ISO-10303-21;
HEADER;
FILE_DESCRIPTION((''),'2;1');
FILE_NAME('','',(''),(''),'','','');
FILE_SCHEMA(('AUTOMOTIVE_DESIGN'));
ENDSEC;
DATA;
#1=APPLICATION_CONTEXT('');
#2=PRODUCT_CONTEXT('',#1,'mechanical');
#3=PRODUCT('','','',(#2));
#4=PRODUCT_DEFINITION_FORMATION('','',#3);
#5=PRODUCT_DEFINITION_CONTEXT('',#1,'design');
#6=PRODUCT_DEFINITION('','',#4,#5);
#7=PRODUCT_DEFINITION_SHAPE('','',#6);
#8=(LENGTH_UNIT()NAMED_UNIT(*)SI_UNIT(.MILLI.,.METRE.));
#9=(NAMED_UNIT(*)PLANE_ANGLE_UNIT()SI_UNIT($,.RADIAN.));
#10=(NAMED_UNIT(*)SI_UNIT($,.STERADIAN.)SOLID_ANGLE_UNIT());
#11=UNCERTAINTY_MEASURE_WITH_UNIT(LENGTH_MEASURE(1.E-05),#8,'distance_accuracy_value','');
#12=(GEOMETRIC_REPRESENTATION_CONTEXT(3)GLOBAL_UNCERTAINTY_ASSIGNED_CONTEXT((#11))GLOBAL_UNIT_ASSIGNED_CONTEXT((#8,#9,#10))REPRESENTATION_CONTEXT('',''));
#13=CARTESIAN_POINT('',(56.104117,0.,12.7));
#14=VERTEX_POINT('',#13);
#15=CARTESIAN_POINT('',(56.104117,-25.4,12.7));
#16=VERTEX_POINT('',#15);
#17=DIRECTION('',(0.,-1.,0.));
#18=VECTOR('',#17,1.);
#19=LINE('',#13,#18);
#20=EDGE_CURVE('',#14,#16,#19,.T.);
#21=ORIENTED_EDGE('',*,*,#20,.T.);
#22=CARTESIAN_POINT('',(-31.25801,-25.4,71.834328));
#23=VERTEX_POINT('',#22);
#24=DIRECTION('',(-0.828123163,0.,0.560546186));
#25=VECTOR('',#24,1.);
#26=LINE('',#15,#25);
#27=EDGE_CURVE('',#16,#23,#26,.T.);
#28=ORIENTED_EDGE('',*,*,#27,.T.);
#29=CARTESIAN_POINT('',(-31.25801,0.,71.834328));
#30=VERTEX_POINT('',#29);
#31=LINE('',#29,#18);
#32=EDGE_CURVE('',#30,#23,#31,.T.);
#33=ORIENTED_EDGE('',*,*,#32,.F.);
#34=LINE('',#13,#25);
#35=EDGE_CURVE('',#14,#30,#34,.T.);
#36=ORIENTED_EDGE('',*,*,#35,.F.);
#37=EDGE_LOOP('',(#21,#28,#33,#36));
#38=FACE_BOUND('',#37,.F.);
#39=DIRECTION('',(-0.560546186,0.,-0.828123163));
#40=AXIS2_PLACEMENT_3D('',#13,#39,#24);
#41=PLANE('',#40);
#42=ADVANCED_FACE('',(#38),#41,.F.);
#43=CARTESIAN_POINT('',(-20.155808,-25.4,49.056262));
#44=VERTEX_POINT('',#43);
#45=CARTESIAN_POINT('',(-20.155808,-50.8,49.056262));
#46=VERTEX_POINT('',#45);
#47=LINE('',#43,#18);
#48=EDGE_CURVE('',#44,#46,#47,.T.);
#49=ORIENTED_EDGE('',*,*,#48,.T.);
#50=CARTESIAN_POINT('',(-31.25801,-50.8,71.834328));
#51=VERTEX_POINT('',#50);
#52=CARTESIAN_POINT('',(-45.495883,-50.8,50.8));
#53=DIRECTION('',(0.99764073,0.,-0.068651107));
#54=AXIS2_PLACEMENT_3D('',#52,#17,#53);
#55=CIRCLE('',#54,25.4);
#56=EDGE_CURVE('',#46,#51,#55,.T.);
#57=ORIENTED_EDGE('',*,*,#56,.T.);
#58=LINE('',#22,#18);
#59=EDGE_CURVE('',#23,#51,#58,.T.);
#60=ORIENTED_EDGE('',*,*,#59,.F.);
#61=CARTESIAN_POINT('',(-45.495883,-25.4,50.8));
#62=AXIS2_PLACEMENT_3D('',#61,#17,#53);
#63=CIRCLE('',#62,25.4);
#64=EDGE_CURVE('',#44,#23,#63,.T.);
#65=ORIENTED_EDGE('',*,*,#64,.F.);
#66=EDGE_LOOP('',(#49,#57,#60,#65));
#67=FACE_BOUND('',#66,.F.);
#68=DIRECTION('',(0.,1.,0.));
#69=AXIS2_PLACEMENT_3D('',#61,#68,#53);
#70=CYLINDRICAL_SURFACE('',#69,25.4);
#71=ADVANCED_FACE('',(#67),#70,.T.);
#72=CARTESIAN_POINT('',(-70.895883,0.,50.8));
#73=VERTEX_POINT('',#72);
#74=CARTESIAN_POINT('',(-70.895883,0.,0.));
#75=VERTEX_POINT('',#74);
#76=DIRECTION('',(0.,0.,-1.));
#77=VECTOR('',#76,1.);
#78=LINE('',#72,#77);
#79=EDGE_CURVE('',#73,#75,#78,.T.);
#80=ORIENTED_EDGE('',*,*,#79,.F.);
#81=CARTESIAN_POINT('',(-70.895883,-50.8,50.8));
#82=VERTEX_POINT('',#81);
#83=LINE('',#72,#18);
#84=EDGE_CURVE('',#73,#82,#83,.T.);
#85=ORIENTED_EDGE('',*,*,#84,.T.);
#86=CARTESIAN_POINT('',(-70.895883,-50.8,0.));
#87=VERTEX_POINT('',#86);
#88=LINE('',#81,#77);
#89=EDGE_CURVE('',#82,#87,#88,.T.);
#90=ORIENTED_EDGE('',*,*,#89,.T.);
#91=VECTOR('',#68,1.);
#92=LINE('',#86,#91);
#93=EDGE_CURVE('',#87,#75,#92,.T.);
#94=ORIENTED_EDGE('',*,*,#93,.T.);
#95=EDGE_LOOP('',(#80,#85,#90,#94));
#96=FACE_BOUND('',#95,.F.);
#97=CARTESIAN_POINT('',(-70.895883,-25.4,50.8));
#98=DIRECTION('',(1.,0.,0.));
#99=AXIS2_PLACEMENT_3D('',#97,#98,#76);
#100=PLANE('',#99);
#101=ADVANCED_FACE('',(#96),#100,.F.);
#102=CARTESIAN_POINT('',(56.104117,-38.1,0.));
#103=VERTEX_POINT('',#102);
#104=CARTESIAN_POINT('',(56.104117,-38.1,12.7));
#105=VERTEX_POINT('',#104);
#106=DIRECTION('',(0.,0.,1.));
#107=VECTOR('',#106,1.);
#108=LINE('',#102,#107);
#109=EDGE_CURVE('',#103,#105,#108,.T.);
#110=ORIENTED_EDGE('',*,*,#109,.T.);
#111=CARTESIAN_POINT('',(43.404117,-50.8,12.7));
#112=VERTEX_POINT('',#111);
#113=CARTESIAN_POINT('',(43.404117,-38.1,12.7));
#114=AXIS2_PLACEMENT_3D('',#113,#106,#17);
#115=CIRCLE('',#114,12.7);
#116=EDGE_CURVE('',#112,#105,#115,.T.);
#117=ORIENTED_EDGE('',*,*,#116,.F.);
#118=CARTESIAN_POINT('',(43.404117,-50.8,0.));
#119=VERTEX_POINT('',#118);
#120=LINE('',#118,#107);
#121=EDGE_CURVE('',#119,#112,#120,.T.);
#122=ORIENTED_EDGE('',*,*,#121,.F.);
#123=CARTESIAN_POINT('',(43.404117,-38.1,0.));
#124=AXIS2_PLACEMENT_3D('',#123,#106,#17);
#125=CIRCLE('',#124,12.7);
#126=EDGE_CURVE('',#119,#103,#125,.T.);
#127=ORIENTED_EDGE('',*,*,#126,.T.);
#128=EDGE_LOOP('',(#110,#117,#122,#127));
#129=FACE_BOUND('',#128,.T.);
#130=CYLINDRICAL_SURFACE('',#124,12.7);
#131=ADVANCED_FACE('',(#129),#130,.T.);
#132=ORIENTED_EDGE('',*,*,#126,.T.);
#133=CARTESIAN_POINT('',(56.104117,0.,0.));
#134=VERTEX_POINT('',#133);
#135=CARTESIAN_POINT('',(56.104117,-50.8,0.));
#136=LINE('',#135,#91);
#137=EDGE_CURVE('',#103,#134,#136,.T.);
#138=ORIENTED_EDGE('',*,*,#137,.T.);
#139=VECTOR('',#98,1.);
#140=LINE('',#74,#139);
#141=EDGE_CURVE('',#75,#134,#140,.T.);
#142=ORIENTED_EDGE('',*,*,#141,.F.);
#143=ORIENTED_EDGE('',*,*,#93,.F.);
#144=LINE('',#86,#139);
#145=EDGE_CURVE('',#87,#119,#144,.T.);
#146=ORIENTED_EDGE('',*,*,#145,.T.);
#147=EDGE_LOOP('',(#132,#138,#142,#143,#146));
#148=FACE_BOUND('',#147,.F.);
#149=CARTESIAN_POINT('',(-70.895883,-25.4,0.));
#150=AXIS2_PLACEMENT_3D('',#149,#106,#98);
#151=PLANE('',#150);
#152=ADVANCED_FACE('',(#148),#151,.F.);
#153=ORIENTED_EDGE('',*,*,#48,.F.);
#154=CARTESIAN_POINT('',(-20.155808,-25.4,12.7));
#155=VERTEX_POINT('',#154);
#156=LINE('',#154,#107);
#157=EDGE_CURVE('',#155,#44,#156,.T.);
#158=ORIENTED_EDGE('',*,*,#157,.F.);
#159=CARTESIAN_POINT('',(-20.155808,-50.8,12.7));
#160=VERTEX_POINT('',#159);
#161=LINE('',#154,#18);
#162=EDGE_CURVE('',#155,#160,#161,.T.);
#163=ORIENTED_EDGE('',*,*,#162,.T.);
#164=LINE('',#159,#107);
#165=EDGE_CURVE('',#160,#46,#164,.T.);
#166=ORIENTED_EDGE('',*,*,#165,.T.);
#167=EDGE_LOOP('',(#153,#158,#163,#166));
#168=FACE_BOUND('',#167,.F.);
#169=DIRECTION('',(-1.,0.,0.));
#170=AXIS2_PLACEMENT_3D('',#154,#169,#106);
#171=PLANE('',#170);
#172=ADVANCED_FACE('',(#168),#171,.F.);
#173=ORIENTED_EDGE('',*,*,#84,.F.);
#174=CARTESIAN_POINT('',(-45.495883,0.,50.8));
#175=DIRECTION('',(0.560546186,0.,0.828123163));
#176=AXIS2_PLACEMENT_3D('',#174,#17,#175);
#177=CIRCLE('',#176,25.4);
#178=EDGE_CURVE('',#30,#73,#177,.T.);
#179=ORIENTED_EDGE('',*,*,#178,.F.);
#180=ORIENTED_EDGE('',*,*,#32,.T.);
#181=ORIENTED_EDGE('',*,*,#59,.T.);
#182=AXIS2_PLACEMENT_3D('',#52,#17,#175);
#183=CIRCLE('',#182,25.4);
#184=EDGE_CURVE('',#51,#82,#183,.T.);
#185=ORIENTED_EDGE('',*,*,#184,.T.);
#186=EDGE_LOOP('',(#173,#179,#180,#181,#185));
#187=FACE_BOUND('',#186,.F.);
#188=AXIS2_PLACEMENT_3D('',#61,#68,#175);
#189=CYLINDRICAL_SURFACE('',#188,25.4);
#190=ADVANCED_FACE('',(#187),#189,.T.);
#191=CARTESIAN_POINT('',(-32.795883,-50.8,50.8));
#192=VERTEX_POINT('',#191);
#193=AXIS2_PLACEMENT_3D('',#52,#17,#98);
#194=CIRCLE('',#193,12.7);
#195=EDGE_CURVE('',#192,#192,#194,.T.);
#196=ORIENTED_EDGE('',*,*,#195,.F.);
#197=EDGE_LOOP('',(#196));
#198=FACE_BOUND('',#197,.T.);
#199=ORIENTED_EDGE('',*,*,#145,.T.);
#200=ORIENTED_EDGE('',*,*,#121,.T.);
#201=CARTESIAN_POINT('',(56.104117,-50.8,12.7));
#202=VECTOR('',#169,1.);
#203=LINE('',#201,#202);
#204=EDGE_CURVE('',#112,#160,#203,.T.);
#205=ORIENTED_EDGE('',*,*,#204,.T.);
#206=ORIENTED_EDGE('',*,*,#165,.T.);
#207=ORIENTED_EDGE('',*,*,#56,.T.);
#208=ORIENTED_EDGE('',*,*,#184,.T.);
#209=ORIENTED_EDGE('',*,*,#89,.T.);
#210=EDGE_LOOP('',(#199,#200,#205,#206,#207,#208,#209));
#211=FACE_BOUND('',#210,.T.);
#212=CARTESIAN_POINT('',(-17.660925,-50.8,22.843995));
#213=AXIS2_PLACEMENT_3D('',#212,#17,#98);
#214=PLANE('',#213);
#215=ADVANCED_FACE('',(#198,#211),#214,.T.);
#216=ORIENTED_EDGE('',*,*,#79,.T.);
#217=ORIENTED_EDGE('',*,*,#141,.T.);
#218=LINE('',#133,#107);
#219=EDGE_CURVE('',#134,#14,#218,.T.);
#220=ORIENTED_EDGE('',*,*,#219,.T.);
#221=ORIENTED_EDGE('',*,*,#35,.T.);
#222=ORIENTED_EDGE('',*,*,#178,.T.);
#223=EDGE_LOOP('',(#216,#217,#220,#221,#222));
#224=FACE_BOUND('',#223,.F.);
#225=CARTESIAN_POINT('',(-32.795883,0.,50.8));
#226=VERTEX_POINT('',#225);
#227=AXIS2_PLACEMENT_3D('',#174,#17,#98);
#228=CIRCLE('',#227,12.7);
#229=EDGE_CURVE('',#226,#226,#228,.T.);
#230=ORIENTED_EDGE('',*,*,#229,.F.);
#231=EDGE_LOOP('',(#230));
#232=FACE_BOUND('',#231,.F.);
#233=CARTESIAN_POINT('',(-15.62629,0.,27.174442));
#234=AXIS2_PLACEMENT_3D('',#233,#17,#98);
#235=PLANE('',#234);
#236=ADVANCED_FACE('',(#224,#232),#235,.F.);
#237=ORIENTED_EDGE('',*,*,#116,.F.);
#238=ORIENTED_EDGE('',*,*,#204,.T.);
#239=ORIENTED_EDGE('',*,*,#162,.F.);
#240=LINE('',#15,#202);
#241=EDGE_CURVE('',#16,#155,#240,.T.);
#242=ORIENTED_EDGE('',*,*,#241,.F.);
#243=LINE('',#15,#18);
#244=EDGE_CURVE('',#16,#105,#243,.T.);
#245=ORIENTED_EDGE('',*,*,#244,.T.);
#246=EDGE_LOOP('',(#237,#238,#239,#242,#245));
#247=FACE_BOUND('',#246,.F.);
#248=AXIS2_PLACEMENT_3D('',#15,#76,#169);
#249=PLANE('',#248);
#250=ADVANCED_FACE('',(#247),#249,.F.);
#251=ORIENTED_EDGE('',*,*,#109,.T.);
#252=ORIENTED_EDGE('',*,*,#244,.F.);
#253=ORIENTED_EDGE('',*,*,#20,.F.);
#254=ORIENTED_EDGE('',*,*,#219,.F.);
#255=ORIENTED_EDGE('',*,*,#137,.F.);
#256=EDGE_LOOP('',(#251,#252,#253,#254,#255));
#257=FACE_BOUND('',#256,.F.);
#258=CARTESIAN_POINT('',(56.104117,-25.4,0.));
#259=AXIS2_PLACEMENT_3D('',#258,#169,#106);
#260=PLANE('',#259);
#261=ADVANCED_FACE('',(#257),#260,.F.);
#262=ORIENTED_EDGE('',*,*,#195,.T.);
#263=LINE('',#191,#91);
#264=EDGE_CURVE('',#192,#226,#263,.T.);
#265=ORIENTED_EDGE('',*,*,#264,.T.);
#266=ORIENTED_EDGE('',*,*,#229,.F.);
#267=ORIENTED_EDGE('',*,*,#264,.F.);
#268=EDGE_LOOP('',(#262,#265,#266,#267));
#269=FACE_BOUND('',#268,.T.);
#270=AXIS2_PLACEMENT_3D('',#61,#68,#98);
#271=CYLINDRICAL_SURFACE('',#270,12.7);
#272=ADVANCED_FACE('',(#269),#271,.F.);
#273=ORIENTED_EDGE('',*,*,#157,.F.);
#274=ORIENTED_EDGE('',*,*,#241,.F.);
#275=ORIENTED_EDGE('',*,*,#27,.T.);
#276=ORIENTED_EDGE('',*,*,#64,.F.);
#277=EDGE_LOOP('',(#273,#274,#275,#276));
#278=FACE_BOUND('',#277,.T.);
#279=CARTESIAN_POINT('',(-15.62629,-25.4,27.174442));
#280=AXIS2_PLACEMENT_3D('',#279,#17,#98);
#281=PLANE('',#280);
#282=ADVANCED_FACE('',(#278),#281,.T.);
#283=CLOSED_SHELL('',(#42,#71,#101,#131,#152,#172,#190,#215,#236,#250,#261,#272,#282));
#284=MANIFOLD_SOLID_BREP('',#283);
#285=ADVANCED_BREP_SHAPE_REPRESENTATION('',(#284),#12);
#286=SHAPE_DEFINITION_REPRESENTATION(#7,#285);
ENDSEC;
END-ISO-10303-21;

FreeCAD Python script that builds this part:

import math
import FreeCAD as App
import Part
import Sketcher
from FreeCAD import Vector
Q = App.Units.Quantity


def edges_at(feature, points):
    """Names of the edges that pass closest to the given points."""
    edges = feature.Shape.Edges
    near = lambda p: min(range(len(edges)), key=lambda i: edges[i].distToShape(Part.Vertex(*p))[0])
    return sorted({f"Edge{near(p) + 1}" for p in points})

doc = App.newDocument("Part")
body = doc.addObject("PartDesign::Body", "Body")

# Sketch on XZ plane
sketch1 = body.newObject("Sketcher::SketchObject", "Sketch")
sketch1.AttachmentSupport = (doc.getObject("XZ_Plane"), [""])
sketch1.MapMode = "FlatFace"
sketch1.addGeometry([
    Part.LineSegment(Vector(56, 13, 0), Vector(-31, 72, 0)),  # 0
    Part.ArcOfCircle(Part.Circle(Vector(-45, 51, 0), Vector(0, 0, 1), 25), math.radians(56), math.radians(180)),  # 1
    Part.LineSegment(Vector(-71, 51, 0), Vector(-71, 0, 0)),  # 2
    Part.LineSegment(Vector(-71, 0, 0), Vector(56, 0, 0)),  # 3
    Part.LineSegment(Vector(56, 0, 0), Vector(56, 13, 0)),  # 4
    Part.Circle(Vector(-45, 51, 0), Vector(0, 0, 1), 13),  # 5
], False)
sketch1.addConstraint([
    Sketcher.Constraint("Tangent", 0, 2, 1, 1),
    Sketcher.Constraint("Tangent", 1, 2, 2, 1),
    Sketcher.Constraint("Coincident", 2, 2, 3, 1),
    Sketcher.Constraint("Coincident", 3, 2, 4, 1),
    Sketcher.Constraint("Coincident", 4, 2, 0, 1),
    Sketcher.Constraint("Vertical", 2),
    Sketcher.Constraint("Horizontal", 3),
    Sketcher.Constraint("Vertical", 4),
    Sketcher.Constraint("Coincident", 5, 3, 1, 3),
    Sketcher.Constraint("PointOnObject", 2, 2, -1),
    Sketcher.Constraint("Diameter", 5, Q("1 in")),
    Sketcher.Constraint("Radius", 1, Q("1 in")),
    Sketcher.Constraint("DistanceX", 3, 1, 3, 2, Q("5 in")),
    Sketcher.Constraint("DistanceY", 2, 2, 2, 1, Q("2 in")),
    Sketcher.Constraint("DistanceY", 4, 1, 4, 2, Q("0.5 in")),
    Sketcher.Constraint("DistanceX", 0, 2, -1, 1, 31.25801),
])
pad1 = body.newObject("PartDesign::Pad", "Pad")
pad1.Profile = sketch1
pad1.Length = Q("1 in")

# Sketch on XZ plane
sketch2 = body.newObject("Sketcher::SketchObject", "Sketch001")
sketch2.AttachmentSupport = (doc.getObject("XZ_Plane"), [""])
sketch2.MapMode = "FlatFace"
sketch2.AttachmentOffset = App.Placement(Vector(0, 0, 1 * 25.4), App.Rotation())
sketch2.addGeometry([
    Part.LineSegment(Vector(-20, 13, 0), Vector(-20, 49, 0)),  # 0
    Part.ArcOfCircle(Part.Circle(Vector(-45, 51, 0), Vector(0, 0, 1), 25), math.radians(-4), math.radians(56)),  # 1
    Part.ArcOfCircle(Part.Circle(Vector(-45, 51, 0), Vector(0, 0, 1), 25), math.radians(56), math.radians(180)),  # 2
    Part.LineSegment(Vector(-71, 51, 0), Vector(-71, 0, 0)),  # 3
    Part.LineSegment(Vector(-71, 0, 0), Vector(56, 0, 0)),  # 4
    Part.LineSegment(Vector(56, 0, 0), Vector(56, 13, 0)),  # 5
    Part.LineSegment(Vector(56, 13, 0), Vector(-20, 13, 0)),  # 6
    Part.Circle(Vector(-45, 51, 0), Vector(0, 0, 1), 13),  # 7
], False)
sketch2.addConstraint([
    Sketcher.Constraint("Coincident", 0, 2, 1, 1),
    Sketcher.Constraint("Tangent", 1, 2, 2, 1),
    Sketcher.Constraint("Tangent", 2, 2, 3, 1),
    Sketcher.Constraint("Coincident", 3, 2, 4, 1),
    Sketcher.Constraint("Coincident", 4, 2, 5, 1),
    Sketcher.Constraint("Coincident", 5, 2, 6, 1),
    Sketcher.Constraint("Coincident", 6, 2, 0, 1),
    Sketcher.Constraint("Vertical", 0),
    Sketcher.Constraint("Vertical", 3),
    Sketcher.Constraint("Horizontal", 4),
    Sketcher.Constraint("Vertical", 5),
    Sketcher.Constraint("Horizontal", 6),
    Sketcher.Constraint("Coincident", 7, 3, 1, 3),
    Sketcher.Constraint("Equal", 1, 2),
    Sketcher.Constraint("PointOnObject", 3, 2, -1),
    Sketcher.Constraint("Diameter", 7, Q("1 in")),
    Sketcher.Constraint("Radius", 1, Q("1 in")),
    Sketcher.Constraint("DistanceX", 4, 1, 4, 2, Q("5 in")),
    Sketcher.Constraint("DistanceY", 3, 2, 3, 1, Q("2 in")),
    Sketcher.Constraint("DistanceY", 5, 1, 5, 2, Q("0.5 in")),
    Sketcher.Constraint("DistanceY", 0, 1, 0, 2, 36.356262),
    Sketcher.Constraint("DistanceX", 1, 2, 0, 2, 11.102201),
    Sketcher.Constraint("DistanceX", 0, 2, -1, 1, 20.155808),
])
pad2 = body.newObject("PartDesign::Pad", "Pad001")
pad2.Profile = sketch2
pad2.Length = Q("1 in")
doc.recompute()

fillet = body.newObject("PartDesign::Fillet", "Fillet")
fillet.Base = (pad2, edges_at(pad2, [(56.104, -50.8, 6.35)]))
fillet.Radius = Q("0.5 in")

doc.recompute()
